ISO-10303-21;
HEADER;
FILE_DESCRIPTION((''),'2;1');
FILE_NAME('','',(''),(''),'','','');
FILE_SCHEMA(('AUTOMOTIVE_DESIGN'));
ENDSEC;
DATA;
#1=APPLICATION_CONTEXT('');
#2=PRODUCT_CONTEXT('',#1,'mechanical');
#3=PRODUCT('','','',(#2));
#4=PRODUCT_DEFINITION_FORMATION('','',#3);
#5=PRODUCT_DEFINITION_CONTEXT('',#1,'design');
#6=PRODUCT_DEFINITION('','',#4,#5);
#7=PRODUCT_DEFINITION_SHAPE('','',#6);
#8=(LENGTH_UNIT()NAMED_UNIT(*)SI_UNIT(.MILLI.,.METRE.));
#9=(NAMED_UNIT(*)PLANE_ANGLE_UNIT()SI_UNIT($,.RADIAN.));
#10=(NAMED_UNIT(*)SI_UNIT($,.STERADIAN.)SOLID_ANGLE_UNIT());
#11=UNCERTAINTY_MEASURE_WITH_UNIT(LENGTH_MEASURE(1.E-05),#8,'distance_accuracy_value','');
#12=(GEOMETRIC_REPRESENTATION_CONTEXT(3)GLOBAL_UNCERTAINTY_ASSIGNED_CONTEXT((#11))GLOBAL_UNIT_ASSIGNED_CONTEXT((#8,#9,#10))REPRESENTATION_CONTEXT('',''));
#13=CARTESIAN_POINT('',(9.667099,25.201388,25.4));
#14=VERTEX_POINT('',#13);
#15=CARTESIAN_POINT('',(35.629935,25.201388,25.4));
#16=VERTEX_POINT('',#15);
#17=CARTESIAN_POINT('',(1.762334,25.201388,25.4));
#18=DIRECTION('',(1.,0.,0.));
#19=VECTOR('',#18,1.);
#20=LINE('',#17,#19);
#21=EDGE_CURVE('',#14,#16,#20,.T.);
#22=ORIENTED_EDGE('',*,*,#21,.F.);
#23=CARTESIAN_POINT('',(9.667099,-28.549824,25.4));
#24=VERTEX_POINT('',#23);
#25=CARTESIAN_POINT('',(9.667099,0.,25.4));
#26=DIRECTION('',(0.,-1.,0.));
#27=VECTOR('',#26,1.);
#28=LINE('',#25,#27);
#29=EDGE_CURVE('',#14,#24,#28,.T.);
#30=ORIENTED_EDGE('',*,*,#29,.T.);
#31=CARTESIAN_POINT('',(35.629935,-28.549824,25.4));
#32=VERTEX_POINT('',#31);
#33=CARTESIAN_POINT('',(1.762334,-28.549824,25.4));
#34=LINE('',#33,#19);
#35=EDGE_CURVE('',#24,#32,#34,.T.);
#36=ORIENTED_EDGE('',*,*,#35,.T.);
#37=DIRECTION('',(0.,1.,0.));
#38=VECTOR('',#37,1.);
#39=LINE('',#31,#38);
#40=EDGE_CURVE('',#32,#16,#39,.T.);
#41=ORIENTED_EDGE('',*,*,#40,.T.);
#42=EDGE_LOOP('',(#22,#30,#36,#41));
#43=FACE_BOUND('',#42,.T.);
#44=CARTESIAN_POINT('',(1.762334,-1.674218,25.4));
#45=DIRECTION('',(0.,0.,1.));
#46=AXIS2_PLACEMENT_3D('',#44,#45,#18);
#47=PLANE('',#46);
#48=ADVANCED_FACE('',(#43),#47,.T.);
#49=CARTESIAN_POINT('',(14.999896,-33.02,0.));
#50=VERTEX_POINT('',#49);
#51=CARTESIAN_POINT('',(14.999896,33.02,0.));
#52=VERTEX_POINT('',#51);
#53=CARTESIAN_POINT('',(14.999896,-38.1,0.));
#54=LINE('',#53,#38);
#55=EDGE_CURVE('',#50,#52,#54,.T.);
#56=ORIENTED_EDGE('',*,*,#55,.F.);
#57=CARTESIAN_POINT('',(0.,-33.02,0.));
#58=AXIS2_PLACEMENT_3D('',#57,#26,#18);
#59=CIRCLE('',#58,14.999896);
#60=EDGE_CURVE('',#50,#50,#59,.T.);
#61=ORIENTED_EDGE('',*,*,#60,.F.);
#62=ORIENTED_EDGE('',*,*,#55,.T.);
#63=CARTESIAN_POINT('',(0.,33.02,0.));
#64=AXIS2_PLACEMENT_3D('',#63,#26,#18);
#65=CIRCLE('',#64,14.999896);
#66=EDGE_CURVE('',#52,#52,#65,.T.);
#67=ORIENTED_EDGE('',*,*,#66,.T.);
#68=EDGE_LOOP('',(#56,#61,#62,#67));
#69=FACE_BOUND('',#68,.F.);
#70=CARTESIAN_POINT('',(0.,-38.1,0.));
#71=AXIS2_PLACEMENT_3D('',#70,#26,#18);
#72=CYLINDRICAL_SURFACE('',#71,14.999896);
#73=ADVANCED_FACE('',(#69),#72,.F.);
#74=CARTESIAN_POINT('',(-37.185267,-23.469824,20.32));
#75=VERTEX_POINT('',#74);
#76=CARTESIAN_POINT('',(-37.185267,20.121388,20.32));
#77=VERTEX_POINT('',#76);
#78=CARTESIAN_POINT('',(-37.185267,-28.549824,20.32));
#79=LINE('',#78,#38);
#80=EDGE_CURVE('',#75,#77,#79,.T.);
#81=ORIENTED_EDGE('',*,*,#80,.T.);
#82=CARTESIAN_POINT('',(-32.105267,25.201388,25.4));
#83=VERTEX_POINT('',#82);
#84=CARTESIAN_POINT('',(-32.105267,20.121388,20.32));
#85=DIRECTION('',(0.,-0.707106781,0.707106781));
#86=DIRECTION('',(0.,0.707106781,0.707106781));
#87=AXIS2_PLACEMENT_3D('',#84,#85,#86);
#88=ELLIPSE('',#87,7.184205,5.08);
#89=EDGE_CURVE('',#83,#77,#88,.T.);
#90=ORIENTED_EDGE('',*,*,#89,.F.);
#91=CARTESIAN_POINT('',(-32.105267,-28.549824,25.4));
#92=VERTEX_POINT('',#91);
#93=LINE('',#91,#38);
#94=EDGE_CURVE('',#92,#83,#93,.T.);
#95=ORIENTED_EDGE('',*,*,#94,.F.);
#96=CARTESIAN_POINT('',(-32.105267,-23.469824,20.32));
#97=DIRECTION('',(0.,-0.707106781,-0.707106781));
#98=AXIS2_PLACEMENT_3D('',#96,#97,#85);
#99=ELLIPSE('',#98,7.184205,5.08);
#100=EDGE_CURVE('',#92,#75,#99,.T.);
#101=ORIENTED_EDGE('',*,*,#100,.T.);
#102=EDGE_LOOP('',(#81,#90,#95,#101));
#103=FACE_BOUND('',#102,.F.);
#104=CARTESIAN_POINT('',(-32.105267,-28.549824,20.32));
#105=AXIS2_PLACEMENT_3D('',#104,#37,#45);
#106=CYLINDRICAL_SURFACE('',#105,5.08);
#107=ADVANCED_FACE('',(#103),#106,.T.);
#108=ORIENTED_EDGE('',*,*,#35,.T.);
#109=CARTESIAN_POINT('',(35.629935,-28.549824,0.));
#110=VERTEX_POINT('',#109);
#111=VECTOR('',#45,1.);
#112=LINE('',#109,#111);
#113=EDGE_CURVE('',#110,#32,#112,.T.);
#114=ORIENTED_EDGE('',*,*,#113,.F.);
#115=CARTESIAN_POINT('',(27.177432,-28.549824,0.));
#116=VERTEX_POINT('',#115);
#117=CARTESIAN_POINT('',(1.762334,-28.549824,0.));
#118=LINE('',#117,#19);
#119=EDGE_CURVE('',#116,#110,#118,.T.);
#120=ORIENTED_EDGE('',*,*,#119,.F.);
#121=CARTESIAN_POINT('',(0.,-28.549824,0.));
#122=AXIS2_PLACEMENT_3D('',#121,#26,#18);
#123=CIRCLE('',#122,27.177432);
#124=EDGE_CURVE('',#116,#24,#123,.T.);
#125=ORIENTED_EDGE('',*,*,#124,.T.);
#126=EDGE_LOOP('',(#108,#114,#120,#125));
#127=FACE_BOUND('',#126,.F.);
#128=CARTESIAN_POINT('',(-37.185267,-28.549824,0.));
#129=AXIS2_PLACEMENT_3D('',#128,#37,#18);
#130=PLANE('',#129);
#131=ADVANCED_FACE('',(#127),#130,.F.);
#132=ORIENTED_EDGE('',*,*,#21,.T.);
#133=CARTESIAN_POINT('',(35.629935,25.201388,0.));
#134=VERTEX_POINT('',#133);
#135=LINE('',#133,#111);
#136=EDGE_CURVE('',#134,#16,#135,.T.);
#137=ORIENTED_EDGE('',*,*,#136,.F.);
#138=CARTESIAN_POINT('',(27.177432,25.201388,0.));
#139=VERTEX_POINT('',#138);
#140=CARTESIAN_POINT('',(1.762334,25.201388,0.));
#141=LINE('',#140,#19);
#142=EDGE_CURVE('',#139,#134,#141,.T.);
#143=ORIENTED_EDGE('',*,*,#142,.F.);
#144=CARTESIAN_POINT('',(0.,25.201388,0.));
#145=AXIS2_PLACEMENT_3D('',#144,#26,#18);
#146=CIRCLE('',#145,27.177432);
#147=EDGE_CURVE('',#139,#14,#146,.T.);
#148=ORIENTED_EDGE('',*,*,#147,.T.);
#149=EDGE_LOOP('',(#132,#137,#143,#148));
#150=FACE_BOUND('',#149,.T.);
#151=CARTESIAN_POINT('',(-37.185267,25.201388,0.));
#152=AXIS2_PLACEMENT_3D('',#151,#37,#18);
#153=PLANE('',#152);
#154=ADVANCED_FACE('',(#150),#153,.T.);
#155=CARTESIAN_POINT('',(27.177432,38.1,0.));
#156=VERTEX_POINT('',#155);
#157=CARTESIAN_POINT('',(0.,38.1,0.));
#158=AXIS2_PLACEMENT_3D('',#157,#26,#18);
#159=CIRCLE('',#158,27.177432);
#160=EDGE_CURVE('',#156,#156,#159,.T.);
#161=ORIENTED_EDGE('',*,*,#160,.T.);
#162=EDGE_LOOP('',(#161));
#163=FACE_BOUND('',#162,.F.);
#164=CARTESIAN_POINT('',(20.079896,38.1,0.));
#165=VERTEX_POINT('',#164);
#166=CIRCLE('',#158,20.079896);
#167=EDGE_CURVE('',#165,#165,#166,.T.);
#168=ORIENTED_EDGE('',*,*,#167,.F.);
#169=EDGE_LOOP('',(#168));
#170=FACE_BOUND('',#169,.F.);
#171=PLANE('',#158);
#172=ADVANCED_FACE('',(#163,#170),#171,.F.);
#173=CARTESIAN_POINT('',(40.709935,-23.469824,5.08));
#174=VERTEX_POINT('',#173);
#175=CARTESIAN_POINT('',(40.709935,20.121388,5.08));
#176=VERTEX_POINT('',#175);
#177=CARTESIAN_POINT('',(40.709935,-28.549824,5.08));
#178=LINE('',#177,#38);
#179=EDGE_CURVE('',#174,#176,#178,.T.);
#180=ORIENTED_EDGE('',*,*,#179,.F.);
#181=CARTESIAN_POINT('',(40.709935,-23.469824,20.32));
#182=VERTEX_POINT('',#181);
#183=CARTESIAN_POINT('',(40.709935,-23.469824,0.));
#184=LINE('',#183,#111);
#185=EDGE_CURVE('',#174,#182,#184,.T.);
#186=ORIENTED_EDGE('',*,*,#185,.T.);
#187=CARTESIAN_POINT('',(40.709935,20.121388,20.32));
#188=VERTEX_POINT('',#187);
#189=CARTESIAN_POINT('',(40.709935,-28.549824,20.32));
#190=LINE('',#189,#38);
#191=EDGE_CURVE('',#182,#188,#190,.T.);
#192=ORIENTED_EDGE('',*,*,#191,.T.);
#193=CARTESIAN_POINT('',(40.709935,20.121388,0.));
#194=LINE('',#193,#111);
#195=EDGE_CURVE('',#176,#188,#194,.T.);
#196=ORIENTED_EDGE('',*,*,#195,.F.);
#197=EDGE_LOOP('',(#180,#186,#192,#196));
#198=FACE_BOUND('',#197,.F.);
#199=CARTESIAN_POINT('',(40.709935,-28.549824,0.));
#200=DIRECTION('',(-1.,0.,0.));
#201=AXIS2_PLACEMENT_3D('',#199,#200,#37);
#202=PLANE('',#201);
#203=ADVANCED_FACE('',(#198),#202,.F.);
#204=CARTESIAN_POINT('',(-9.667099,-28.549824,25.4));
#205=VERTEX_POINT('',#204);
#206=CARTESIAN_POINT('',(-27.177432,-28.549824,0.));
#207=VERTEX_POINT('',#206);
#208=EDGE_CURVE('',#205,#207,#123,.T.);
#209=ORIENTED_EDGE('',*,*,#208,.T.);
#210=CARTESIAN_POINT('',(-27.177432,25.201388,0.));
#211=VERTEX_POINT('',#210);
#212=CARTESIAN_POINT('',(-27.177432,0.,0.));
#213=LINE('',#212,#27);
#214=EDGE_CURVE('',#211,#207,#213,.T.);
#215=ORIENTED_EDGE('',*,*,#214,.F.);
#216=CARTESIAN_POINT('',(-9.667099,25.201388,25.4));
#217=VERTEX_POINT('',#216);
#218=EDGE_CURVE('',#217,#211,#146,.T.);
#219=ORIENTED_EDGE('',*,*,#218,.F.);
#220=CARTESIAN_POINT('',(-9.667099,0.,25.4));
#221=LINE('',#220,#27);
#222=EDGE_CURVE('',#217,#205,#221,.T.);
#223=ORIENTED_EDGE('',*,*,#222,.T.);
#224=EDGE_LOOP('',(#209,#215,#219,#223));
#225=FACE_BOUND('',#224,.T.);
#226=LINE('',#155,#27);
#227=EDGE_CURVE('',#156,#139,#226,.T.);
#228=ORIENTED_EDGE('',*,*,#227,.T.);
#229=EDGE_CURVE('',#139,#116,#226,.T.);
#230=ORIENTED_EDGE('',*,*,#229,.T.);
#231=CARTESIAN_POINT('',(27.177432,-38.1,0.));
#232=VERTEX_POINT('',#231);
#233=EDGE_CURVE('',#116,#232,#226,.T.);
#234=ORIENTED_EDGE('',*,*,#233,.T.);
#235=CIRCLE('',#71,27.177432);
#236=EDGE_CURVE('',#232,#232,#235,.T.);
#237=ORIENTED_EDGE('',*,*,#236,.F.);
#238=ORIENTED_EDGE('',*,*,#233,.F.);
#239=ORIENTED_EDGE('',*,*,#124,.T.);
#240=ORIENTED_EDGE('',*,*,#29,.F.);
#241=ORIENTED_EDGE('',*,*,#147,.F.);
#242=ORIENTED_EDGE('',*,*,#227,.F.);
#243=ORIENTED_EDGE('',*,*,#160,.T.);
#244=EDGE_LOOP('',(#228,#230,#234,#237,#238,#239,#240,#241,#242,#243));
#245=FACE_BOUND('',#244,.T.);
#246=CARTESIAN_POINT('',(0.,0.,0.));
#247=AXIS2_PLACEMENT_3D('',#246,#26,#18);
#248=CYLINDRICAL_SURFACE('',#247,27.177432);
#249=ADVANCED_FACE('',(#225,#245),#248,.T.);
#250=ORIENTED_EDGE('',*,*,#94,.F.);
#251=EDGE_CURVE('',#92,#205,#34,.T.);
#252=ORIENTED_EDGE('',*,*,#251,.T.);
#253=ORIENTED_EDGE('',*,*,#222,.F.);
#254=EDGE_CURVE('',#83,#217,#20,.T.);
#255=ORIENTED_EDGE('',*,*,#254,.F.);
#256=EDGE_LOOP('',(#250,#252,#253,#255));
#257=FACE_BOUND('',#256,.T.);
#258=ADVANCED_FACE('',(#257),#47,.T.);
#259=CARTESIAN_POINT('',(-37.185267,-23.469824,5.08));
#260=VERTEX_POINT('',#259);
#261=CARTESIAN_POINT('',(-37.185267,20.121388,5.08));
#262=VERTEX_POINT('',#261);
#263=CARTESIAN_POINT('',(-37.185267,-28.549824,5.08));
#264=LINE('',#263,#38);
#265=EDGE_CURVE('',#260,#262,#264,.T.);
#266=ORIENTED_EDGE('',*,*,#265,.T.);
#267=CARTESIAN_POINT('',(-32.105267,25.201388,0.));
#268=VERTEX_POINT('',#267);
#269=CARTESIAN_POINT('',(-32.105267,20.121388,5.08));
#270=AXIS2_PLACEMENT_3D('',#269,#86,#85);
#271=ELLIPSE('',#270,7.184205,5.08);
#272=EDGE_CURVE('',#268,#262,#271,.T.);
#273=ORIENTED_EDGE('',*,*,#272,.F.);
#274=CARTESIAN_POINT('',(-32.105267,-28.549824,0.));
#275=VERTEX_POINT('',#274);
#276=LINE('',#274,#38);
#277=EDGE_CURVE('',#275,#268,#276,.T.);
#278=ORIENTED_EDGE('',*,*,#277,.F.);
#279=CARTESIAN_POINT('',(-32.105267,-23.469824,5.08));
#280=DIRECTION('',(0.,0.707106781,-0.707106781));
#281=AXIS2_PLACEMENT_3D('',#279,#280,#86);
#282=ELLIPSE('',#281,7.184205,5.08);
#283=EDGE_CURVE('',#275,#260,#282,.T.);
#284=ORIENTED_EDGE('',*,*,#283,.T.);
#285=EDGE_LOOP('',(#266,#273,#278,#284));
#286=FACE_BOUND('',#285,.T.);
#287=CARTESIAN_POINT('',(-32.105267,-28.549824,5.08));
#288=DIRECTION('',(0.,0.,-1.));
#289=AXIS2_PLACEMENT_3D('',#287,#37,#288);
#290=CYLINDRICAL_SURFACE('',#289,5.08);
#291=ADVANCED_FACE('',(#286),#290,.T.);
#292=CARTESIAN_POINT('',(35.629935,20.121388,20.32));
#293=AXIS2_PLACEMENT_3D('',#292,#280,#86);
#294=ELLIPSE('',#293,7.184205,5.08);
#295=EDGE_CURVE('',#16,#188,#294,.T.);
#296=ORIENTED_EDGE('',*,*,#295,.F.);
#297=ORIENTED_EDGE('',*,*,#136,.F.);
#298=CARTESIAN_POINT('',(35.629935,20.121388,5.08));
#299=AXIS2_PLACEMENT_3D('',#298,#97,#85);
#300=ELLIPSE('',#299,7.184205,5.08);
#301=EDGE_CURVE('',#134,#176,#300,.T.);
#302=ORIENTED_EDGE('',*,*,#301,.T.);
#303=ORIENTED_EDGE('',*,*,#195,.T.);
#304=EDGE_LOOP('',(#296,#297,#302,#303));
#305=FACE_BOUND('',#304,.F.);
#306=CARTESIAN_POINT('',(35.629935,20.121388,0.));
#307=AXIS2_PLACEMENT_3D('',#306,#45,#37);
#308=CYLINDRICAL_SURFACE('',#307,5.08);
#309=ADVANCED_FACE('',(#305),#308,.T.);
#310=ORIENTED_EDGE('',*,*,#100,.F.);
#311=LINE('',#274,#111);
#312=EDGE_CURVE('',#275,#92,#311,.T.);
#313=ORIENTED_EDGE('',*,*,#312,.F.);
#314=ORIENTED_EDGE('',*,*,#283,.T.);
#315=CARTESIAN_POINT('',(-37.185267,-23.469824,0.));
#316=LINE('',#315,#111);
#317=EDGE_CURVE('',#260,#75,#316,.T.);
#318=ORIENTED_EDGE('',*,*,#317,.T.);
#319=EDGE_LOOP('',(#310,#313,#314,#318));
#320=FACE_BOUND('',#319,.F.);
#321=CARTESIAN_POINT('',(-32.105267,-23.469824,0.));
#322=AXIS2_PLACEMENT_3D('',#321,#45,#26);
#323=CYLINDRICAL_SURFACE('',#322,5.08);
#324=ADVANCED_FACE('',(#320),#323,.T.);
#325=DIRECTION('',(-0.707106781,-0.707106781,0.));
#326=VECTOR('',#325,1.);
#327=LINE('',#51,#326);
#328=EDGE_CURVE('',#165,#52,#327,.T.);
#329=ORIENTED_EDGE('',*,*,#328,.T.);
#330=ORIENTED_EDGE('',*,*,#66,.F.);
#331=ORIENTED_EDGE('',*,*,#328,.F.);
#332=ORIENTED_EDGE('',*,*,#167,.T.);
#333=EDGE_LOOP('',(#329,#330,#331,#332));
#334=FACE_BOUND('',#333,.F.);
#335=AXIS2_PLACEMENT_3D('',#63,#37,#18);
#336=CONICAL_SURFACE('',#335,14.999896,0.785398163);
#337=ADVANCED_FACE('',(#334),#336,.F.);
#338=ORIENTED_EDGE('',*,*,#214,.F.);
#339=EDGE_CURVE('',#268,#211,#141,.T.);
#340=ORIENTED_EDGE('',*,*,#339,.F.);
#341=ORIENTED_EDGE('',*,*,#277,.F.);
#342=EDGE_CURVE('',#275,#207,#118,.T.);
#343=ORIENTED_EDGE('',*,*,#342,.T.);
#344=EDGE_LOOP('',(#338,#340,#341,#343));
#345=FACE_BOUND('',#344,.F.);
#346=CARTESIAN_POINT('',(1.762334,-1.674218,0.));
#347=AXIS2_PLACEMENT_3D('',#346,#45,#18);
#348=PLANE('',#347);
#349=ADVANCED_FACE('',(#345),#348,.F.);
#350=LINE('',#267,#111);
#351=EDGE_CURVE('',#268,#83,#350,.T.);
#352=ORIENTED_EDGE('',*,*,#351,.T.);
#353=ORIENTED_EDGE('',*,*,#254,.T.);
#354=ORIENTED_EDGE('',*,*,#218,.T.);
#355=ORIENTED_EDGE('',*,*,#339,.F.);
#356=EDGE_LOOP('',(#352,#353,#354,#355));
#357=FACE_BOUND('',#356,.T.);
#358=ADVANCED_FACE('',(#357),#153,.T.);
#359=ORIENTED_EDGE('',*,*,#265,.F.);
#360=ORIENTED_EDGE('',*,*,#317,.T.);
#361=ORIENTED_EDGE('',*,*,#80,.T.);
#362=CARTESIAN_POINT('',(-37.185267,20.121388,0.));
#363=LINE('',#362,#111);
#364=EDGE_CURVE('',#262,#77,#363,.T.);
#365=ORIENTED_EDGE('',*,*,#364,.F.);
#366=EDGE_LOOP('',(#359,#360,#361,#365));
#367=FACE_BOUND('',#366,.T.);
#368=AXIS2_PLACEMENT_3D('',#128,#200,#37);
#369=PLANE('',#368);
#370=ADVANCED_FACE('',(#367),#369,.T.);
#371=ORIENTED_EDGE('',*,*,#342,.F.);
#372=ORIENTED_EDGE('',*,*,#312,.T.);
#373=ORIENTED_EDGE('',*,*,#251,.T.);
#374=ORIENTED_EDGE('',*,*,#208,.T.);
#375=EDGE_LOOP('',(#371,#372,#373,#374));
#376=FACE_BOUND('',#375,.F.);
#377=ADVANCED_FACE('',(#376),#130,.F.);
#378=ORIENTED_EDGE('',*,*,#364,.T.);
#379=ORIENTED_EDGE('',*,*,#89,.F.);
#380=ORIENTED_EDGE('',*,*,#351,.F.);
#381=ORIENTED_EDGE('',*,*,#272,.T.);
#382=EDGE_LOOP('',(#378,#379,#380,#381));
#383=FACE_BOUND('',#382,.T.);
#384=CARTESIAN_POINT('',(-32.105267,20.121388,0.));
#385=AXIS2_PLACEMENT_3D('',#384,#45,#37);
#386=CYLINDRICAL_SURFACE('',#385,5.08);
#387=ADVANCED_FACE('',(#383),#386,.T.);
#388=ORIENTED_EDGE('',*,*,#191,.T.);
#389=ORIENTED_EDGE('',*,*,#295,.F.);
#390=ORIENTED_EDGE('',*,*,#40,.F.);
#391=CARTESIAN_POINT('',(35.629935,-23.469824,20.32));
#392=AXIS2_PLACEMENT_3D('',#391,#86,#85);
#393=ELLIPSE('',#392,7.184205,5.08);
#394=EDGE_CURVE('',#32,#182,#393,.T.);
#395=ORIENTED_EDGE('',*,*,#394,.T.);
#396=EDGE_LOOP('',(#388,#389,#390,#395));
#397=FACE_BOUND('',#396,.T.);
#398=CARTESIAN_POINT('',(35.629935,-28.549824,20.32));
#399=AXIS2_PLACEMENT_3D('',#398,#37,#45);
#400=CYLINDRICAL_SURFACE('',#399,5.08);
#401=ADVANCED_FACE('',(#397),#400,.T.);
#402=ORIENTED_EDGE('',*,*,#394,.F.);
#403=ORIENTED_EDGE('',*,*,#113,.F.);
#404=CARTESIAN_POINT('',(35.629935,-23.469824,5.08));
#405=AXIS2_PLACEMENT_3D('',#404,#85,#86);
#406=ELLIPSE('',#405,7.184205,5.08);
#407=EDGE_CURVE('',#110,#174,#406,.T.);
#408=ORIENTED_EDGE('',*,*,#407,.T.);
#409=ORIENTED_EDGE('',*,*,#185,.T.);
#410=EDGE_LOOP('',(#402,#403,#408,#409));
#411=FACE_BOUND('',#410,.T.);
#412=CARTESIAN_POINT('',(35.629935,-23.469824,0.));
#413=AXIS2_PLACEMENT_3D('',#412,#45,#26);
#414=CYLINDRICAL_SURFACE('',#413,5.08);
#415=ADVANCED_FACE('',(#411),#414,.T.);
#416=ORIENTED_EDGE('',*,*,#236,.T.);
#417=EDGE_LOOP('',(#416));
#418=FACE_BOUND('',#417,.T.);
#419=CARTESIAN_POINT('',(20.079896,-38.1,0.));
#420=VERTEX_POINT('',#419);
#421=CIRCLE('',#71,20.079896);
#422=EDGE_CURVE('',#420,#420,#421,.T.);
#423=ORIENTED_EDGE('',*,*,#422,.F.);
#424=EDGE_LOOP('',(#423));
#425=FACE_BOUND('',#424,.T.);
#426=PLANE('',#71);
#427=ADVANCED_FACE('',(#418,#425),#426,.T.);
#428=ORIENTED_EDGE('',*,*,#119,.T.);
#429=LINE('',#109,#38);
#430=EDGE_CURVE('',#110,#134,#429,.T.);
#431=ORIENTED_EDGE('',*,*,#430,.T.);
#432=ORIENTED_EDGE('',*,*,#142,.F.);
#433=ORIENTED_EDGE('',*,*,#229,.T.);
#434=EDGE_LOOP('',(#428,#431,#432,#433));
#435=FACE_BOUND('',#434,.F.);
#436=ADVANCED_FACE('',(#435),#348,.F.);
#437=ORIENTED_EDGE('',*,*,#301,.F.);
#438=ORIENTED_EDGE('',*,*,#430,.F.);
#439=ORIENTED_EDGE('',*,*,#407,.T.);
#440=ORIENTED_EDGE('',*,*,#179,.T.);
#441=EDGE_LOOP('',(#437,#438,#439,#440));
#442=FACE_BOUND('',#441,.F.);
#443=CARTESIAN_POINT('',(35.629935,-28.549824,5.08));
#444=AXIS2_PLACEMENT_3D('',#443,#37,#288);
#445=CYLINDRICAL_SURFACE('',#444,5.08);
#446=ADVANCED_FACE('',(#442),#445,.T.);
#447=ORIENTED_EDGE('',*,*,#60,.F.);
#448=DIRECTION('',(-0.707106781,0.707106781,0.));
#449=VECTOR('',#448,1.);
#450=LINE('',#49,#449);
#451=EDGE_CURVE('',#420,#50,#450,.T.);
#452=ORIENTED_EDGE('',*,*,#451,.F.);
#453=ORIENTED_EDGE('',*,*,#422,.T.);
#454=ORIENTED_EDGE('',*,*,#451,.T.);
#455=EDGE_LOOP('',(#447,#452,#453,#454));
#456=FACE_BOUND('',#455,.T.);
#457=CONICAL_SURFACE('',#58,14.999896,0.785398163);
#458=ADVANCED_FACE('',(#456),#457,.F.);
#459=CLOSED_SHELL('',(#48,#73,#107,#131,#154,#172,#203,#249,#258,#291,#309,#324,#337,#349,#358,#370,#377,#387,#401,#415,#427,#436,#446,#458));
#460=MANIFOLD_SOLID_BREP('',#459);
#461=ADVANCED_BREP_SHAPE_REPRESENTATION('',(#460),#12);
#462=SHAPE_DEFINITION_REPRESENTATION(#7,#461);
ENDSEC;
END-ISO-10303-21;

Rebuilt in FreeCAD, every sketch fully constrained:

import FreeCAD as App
import Part
import Sketcher
Q = App.Units.Quantity


def edges_at(feature, points):
    """Names of the edges that pass closest to the given points."""
    edges = feature.Shape.Edges
    near = lambda p: min(range(len(edges)), key=lambda i: edges[i].distToShape(Part.Vertex(*p))[0])
    return sorted({f"Edge{near(p) + 1}" for p in points})

doc = App.newDocument("Part")
body = doc.addObject("PartDesign::Body", "Body")

# Sketch on XY plane
sketch1 = body.newObject("Sketcher::SketchObject", "Sketch")
sketch1.AttachmentSupport = (doc.getObject("XY_Plane"), [""])
sketch1.MapMode = "FlatFace"
sketch1.addGeometry([
    Part.LineSegment(App.Vector(-37, 25, 0), App.Vector(-37, -29, 0)),
    Part.LineSegment(App.Vector(-37, -29, 0), App.Vector(41, -29, 0)),
    Part.LineSegment(App.Vector(41, -29, 0), App.Vector(41, 25, 0)),
    Part.LineSegment(App.Vector(41, 25, 0), App.Vector(-37, 25, 0)),
], False)
sketch1.addConstraint([
    Sketcher.Constraint("Coincident", 0, 2, 1, 1),
    Sketcher.Constraint("Coincident", 1, 2, 2, 1),
    Sketcher.Constraint("Coincident", 2, 2, 3, 1),
    Sketcher.Constraint("Coincident", 3, 2, 0, 1),
    Sketcher.Constraint("Vertical", 0),
    Sketcher.Constraint("Horizontal", 1),
    Sketcher.Constraint("Vertical", 2),
    Sketcher.Constraint("Horizontal", 3),
    Sketcher.Constraint("DistanceX", 1, 1, 1, 2, Q("77.895202 mm")),
    Sketcher.Constraint("DistanceY", 0, 2, 0, 1, Q("53.751212 mm")),
    Sketcher.Constraint("DistanceY", -1, 1, 2, 2, Q("25.201388 mm")),
    Sketcher.Constraint("DistanceX", 0, 2, -1, 1, Q("37.185267 mm")),
])
pad1 = body.newObject("PartDesign::Pad", "Pad")
pad1.Profile = sketch1
pad1.Length = Q("1 in")

# Sketch on XZ plane
sketch2 = body.newObject("Sketcher::SketchObject", "Sketch001")
sketch2.AttachmentSupport = (doc.getObject("XZ_Plane"), [""])
sketch2.MapMode = "FlatFace"
sketch2.addGeometry(Part.Circle(App.Vector(0, 0, 0), App.Vector(0, 0, 1), 27), False)
sketch2.addConstraint([
    Sketcher.Constraint("Coincident", 0, 3, -1, 1),
    Sketcher.Constraint("Diameter", 0, Q("54.354864 mm")),
])
pad2 = body.newObject("PartDesign::Pad", "Pad001")
pad2.Profile = sketch2
pad2.Length = Q("3 in")
pad2.Midplane = True
doc.recompute()

fillet = body.newObject("PartDesign::Fillet", "Fillet")
fillet.Base = (pad2, edges_at(pad2, [
    (40.71, -28.55, 12.7),
    (40.71, 25.201, 12.7),
    (40.71, -1.674, 0),
    (40.71, -1.674, 25.4),
    (-37.185, 25.201, 12.7),
    (-37.185, -28.55, 12.7),
    (-37.185, -1.674, 0),
    (-37.185, -1.674, 25.4),
]))
fillet.Radius = Q("0.2 in")

# Sketch on XZ plane
sketch3 = body.newObject("Sketcher::SketchObject", "Sketch002")
sketch3.AttachmentSupport = (doc.getObject("XZ_Plane"), [""])
sketch3.MapMode = "FlatFace"
sketch3.AttachmentOffset = App.Placement(App.Vector(0, 0, 1.5 * 25.4), App.Rotation())
sketch3.addGeometry(Part.Circle(App.Vector(0, 0, 0), App.Vector(0, 0, 1), 15), False)
sketch3.addConstraint([
    Sketcher.Constraint("Coincident", 0, 3, -1, 1),
    Sketcher.Constraint("Diameter", 0, Q("29.999792 mm")),
])
pocket1 = body.newObject("PartDesign::Pocket", "Pocket")
pocket1.Profile = sketch3
pocket1.Type = "ThroughAll"
doc.recompute()

chamfer = body.newObject("PartDesign::Chamfer", "Chamfer")
chamfer.Base = (pocket1, edges_at(pocket1, [(-15, -38.1, 0), (-15, 38.1, 0)]))
chamfer.Size = Q("0.2 in")

doc.recompute()
